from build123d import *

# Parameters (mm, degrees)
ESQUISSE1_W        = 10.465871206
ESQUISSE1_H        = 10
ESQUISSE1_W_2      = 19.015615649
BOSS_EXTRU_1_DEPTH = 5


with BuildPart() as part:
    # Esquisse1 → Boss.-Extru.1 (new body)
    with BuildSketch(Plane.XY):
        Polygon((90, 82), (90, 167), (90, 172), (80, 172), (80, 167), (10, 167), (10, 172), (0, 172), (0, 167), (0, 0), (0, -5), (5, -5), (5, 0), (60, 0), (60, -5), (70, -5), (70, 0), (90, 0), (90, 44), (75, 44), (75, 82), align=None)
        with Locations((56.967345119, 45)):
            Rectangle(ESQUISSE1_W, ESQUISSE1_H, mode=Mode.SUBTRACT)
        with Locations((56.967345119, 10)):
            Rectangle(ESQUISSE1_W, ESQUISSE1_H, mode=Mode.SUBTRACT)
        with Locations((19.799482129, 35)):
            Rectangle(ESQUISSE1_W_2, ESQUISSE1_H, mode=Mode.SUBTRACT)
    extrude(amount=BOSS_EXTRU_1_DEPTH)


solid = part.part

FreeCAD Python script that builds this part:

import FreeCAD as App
import Part
import Sketcher
from FreeCAD import Vector


def add_polygon(sketch, points):
    """Adds a closed chain of lines whose ends are joined by coincident constraints."""
    first, n = sketch.GeometryCount, len(points)
    for a, b in zip(points, points[1:] + points[:1]):
        sketch.addGeometry(Part.LineSegment(App.Vector(*a, 0), App.Vector(*b, 0)), False)
    for i in range(n):
        sketch.addConstraint(Sketcher.Constraint("Coincident", first + i, 2, first + (i + 1) % n, 1))

doc = App.newDocument("Part")
body = doc.addObject("PartDesign::Body", "Body")

# Sketch on XY plane
sketch1 = body.newObject("Sketcher::SketchObject", "Sketch")
sketch1.AttachmentSupport = (doc.getObject("XY_Plane"), [""])
sketch1.MapMode = "FlatFace"
add_polygon(sketch1, [(90, 82), (90, 172), (80, 172), (80, 167), (10, 167), (10, 172), (0, 172), (0, -5), (5, -5), (5, 0), (60, 0), (60, -5), (70, -5), (70, 0), (90, 0), (90, 44), (75, 44), (75, 82)])  # lines 0-17
add_polygon(sketch1, [(62, 5), (52, 5), (52, 15), (62, 15)])  # lines 18-21
add_polygon(sketch1, [(29, 30), (10, 30), (10, 40), (29, 40)])  # lines 22-25
add_polygon(sketch1, [(62, 40), (52, 40), (52, 50), (62, 50)])  # lines 26-29
sketch1.addConstraint(Sketcher.Constraint("Vertical", 0))
sketch1.addConstraint(Sketcher.Constraint("Horizontal", 1))
sketch1.addConstraint(Sketcher.Constraint("Vertical", 2))
sketch1.addConstraint(Sketcher.Constraint("Horizontal", 3))
sketch1.addConstraint(Sketcher.Constraint("Vertical", 4))
sketch1.addConstraint(Sketcher.Constraint("Horizontal", 5))
sketch1.addConstraint(Sketcher.Constraint("Vertical", 6))
sketch1.addConstraint(Sketcher.Constraint("Horizontal", 7))
sketch1.addConstraint(Sketcher.Constraint("Vertical", 8))
sketch1.addConstraint(Sketcher.Constraint("Horizontal", 9))
sketch1.addConstraint(Sketcher.Constraint("Vertical", 10))
sketch1.addConstraint(Sketcher.Constraint("Horizontal", 11))
sketch1.addConstraint(Sketcher.Constraint("Vertical", 12))
sketch1.addConstraint(Sketcher.Constraint("Horizontal", 13))
sketch1.addConstraint(Sketcher.Constraint("Vertical", 14))
sketch1.addConstraint(Sketcher.Constraint("Horizontal", 15))
sketch1.addConstraint(Sketcher.Constraint("Vertical", 16))
sketch1.addConstraint(Sketcher.Constraint("Horizontal", 17))
sketch1.addConstraint(Sketcher.Constraint("Horizontal", 18))
sketch1.addConstraint(Sketcher.Constraint("Vertical", 19))
sketch1.addConstraint(Sketcher.Constraint("Horizontal", 20))
sketch1.addConstraint(Sketcher.Constraint("Vertical", 21))
sketch1.addConstraint(Sketcher.Constraint("Horizontal", 22))
sketch1.addConstraint(Sketcher.Constraint("Vertical", 23))
sketch1.addConstraint(Sketcher.Constraint("Horizontal", 24))
sketch1.addConstraint(Sketcher.Constraint("Vertical", 25))
sketch1.addConstraint(Sketcher.Constraint("Horizontal", 26))
sketch1.addConstraint(Sketcher.Constraint("Vertical", 27))
sketch1.addConstraint(Sketcher.Constraint("Horizontal", 28))
sketch1.addConstraint(Sketcher.Constraint("Vertical", 29))
sketch1.addConstraint(Sketcher.Constraint("PointOnObject", 5, 2, -2))
sketch1.addConstraint(Sketcher.Constraint("PointOnObject", 8, 2, -1))
sketch1.addConstraint(Sketcher.Constraint("PointOnObject", 12, 2, -1))
sketch1.addConstraint(Sketcher.Constraint("Horizontal", 1, 2, 4, 2))
sketch1.addConstraint(Sketcher.Constraint("Horizontal", 7, 2, 10, 2))
sketch1.addConstraint(Sketcher.Constraint("Horizontal", 24, 2, 26, 2))
sketch1.addConstraint(Sketcher.Constraint("Vertical", 0, 2, 13, 2))
sketch1.addConstraint(Sketcher.Constraint("Vertical", 19, 2, 26, 2))
sketch1.addConstraint(Sketcher.Constraint("Vertical", 21, 2, 28, 2))
sketch1.addConstraint(Sketcher.Constraint("Equal", 1, 5))
sketch1.addConstraint(Sketcher.Constraint("Equal", 5, 11))
sketch1.addConstraint(Sketcher.Constraint("Equal", 7, 2))
sketch1.addConstraint(Sketcher.Constraint("Equal", 4, 8))
sketch1.addConstraint(Sketcher.Constraint("Equal", 11, 19))
sketch1.addConstraint(Sketcher.Constraint("Equal", 21, 23))
sketch1.addConstraint(Sketcher.Constraint("Equal", 25, 27))
sketch1.addConstraint(Sketcher.Constraint("DistanceX", 1, 2, 1, 1, 10.0))
sketch1.addConstraint(Sketcher.Constraint("DistanceX", 3, 2, 3, 1, 70.0))
sketch1.addConstraint(Sketcher.Constraint("DistanceX", 7, 1, 7, 2, 5.0))
sketch1.addConstraint(Sketcher.Constraint("DistanceX", 9, 1, 9, 2, 55.0))
sketch1.addConstraint(Sketcher.Constraint("DistanceX", 15, 2, 15, 1, 15.0))
sketch1.addConstraint(Sketcher.Constraint("DistanceY", 0, 1, 0, 2, 90.0))
sketch1.addConstraint(Sketcher.Constraint("DistanceY", 6, 2, 6, 1, 177.0))
sketch1.addConstraint(Sketcher.Constraint("DistanceY", 14, 1, 14, 2, 44.0))
sketch1.addConstraint(Sketcher.Constraint("DistanceY", -1, 1, 18, 2, 5.0))
sketch1.addConstraint(Sketcher.Constraint("DistanceY", -1, 1, 22, 2, 30.0))
sketch1.addConstraint(Sketcher.Constraint("DistanceX", 18, 2, 18, 1, 10.465871))
sketch1.addConstraint(Sketcher.Constraint("DistanceX", 22, 2, 22, 1, 19.015616))
sketch1.addConstraint(Sketcher.Constraint("DistanceX", -1, 1, 18, 2, 51.73441))
sketch1.addConstraint(Sketcher.Constraint("DistanceX", -1, 1, 24, 2, 29.30729))
pad1 = body.newObject("PartDesign::Pad", "Pad")
pad1.Profile = sketch1
pad1.Length = 5

doc.recompute()
